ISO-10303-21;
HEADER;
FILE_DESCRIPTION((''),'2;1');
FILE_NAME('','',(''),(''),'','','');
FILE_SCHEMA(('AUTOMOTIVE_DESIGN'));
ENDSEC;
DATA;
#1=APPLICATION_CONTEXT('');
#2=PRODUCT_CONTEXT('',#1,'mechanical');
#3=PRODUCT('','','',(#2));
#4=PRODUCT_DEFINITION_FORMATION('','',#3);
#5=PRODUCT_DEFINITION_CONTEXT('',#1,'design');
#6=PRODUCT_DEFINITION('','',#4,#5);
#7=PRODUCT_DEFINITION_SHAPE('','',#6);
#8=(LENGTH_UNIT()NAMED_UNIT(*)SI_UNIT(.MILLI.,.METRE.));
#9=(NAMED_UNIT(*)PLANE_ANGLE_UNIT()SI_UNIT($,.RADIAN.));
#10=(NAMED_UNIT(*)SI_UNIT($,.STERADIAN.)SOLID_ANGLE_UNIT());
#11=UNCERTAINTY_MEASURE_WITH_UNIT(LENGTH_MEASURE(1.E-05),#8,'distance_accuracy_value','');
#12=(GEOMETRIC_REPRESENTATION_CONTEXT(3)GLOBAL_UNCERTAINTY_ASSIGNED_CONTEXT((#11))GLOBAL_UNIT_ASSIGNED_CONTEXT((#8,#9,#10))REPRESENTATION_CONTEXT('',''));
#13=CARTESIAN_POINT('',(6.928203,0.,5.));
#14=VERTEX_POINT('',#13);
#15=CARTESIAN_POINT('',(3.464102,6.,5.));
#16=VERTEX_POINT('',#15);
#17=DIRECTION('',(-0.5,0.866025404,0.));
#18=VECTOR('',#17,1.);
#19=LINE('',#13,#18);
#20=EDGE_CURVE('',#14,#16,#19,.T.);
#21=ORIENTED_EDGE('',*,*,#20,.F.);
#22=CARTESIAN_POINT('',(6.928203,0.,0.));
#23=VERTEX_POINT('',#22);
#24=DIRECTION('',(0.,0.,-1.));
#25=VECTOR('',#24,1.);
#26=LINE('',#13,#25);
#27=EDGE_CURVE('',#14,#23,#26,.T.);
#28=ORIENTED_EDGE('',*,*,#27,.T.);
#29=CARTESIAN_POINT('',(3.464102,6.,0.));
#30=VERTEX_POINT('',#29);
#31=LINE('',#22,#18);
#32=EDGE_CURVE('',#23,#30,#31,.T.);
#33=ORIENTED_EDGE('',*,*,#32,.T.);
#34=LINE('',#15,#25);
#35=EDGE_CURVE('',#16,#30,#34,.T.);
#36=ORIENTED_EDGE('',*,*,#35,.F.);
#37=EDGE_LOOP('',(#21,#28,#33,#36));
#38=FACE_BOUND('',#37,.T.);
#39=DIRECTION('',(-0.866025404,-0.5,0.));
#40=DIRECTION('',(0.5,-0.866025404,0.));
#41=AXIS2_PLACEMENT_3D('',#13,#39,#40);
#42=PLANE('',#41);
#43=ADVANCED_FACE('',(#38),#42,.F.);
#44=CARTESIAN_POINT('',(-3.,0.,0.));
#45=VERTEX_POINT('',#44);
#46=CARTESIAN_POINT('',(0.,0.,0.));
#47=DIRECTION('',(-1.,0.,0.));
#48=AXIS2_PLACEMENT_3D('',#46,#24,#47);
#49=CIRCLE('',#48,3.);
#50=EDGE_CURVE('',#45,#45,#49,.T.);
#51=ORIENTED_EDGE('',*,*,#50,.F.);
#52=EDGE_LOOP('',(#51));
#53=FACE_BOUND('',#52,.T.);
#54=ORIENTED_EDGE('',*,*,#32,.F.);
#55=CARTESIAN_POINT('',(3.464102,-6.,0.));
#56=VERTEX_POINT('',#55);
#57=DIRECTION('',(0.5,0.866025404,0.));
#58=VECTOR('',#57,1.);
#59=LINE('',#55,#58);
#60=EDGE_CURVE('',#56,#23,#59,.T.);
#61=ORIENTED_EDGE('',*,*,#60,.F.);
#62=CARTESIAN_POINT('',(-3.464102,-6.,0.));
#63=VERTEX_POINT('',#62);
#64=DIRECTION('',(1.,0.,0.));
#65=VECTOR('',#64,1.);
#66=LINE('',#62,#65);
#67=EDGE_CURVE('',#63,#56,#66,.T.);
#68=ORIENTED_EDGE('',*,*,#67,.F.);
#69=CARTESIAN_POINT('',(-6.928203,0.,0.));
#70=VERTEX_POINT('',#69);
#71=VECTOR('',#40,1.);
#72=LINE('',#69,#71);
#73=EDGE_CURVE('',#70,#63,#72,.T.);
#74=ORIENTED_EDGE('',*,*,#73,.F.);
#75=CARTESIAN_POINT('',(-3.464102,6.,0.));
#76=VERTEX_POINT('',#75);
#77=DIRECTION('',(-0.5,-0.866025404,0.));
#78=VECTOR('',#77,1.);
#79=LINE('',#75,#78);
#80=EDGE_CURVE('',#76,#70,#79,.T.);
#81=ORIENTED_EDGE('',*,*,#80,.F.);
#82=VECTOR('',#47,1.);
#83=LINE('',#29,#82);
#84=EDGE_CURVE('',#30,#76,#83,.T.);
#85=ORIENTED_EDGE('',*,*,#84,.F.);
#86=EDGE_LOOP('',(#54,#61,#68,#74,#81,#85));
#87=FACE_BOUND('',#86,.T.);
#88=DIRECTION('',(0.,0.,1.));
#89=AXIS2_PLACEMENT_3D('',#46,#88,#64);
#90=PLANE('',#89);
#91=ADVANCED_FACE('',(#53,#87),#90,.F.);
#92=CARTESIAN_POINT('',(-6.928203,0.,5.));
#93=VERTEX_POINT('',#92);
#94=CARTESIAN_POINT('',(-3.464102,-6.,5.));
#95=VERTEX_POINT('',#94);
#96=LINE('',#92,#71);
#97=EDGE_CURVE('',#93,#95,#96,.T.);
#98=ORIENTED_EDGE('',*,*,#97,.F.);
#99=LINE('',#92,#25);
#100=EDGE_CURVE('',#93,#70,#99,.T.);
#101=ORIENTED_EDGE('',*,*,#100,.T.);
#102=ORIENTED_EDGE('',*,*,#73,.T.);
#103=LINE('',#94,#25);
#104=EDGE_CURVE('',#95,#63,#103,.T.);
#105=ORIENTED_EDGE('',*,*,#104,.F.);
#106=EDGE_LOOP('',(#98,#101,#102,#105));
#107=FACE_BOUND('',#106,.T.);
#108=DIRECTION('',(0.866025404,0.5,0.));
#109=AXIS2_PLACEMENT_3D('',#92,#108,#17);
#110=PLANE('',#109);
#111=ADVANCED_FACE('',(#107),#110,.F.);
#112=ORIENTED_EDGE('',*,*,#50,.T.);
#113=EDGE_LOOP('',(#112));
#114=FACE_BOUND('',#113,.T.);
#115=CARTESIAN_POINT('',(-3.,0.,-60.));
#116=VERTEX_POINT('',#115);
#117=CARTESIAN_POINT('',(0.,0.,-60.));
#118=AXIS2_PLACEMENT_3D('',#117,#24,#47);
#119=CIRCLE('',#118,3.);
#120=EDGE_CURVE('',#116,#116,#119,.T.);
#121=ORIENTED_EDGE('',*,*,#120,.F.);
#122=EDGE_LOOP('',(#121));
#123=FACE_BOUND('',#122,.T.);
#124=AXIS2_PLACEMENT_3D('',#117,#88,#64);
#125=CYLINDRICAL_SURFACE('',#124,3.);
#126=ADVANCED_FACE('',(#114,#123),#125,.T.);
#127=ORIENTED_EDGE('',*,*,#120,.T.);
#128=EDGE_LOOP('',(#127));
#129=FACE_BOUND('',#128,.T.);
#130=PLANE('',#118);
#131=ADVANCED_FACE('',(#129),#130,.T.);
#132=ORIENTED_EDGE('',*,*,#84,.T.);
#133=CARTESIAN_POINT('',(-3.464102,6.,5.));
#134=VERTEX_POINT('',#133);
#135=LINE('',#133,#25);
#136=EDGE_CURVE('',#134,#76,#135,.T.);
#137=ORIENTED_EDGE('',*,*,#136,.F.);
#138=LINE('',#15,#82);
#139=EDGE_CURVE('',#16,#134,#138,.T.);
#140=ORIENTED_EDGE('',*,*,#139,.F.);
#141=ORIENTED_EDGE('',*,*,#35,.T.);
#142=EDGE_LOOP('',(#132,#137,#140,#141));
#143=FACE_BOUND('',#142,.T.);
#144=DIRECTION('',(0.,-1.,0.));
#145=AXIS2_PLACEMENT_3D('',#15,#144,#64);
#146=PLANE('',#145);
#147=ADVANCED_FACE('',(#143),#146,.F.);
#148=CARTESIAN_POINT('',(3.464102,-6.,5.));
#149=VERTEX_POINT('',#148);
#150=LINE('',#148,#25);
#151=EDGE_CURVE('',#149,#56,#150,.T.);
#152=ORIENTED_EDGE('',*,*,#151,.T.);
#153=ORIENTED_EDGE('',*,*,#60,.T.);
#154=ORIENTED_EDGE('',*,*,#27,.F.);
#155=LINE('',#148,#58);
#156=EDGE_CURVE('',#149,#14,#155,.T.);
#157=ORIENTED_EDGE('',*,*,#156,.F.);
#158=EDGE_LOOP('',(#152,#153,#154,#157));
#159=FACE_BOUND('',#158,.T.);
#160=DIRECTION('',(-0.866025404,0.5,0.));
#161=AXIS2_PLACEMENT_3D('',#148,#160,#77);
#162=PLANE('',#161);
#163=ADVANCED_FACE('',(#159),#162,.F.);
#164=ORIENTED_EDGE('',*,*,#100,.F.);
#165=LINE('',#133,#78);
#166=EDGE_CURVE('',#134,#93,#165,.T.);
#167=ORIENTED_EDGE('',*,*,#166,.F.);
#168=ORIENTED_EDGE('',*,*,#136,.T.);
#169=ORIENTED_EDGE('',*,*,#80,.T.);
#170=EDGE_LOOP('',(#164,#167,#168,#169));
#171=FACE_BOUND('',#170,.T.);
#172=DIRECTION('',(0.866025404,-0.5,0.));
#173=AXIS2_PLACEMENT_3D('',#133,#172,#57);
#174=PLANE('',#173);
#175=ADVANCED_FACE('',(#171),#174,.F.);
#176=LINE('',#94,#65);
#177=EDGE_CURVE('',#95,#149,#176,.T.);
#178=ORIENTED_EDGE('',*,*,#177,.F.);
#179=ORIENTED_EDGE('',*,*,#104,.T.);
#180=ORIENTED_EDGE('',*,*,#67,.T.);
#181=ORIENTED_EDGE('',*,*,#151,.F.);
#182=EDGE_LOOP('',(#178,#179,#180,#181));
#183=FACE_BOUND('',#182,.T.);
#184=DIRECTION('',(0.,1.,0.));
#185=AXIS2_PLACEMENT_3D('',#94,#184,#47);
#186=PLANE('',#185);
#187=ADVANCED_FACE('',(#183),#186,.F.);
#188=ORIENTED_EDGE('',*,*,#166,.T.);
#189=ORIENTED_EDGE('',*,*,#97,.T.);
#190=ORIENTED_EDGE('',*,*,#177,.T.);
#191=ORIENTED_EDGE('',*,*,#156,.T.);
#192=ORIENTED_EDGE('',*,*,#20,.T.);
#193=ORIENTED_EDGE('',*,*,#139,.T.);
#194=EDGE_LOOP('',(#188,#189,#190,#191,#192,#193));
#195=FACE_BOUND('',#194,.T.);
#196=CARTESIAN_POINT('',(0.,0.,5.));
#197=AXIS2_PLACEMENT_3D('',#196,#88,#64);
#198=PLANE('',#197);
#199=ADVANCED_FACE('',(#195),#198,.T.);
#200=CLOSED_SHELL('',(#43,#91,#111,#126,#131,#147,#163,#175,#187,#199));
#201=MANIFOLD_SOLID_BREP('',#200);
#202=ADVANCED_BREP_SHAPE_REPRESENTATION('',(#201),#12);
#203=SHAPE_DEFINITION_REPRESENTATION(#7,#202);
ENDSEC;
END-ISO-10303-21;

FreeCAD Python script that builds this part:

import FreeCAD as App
import Part
import Sketcher
Q = App.Units.Quantity

doc = App.newDocument("Part")
body = doc.addObject("PartDesign::Body", "Body")

sketch1 = doc.addObject("Sketcher::SketchObject", "Sketch")
body.addObject(sketch1)
sketch1.AttachmentSupport = (doc.XY_Plane, [""])
sketch1.MapMode = "FlatFace"
sketch1.addGeometry(Part.LineSegment(App.Vector(3, 6, 0), App.Vector(-3, 6, 0)), False)
sketch1.addGeometry(Part.LineSegment(App.Vector(-3, 6, 0), App.Vector(-7, 0, 0)), False)
sketch1.addGeometry(Part.LineSegment(App.Vector(-7, 0, 0), App.Vector(-3, -6, 0)), False)
sketch1.addGeometry(Part.LineSegment(App.Vector(-3, -6, 0), App.Vector(3, -6, 0)), False)
sketch1.addGeometry(Part.LineSegment(App.Vector(3, -6, 0), App.Vector(7, 0, 0)), False)
sketch1.addGeometry(Part.LineSegment(App.Vector(7, 0, 0), App.Vector(3, 6, 0)), False)
sketch1.addConstraint(Sketcher.Constraint("Coincident", 0, 2, 1, 1))
sketch1.addConstraint(Sketcher.Constraint("Coincident", 1, 2, 2, 1))
sketch1.addConstraint(Sketcher.Constraint("Coincident", 2, 2, 3, 1))
sketch1.addConstraint(Sketcher.Constraint("Coincident", 3, 2, 4, 1))
sketch1.addConstraint(Sketcher.Constraint("Coincident", 4, 2, 5, 1))
sketch1.addConstraint(Sketcher.Constraint("Coincident", 5, 2, 0, 1))
sketch1.addConstraint(Sketcher.Constraint("Horizontal", 0))
sketch1.addConstraint(Sketcher.Constraint("Horizontal", 3))
sketch1.addConstraint(Sketcher.Constraint("Symmetric", 0, 2, 3, 2, -1, 1))
sketch1.addConstraint(Sketcher.Constraint("Symmetric", 1, 2, 4, 2, -1, 1))
sketch1.addConstraint(Sketcher.Constraint("PointOnObject", 1, 2, -1))
sketch1.addConstraint(Sketcher.Constraint("Parallel", 2, 5))
sketch1.addConstraint(Sketcher.Constraint("Vertical", 0, 2, 2, 2))
sketch1.addConstraint(Sketcher.Constraint("Angle", 1, Q("-120 deg")))
sketch1.addConstraint(Sketcher.Constraint("DistanceY", -1, 1, 0, 2, 6.0))
sketch1.addConstraint(Sketcher.Constraint("DistanceX", 0, 2, -1, 1, 3.464102))
pad1 = doc.addObject("PartDesign::Pad", "Pad")
body.addObject(pad1)
pad1.Profile = sketch1
pad1.Length = 5

sketch2 = doc.addObject("Sketcher::SketchObject", "Sketch001")
body.addObject(sketch2)
sketch2.AttachmentSupport = (doc.XY_Plane, [""])
sketch2.MapMode = "FlatFace"
sketch2.addGeometry(Part.Circle(App.Vector(0, 0, 0), App.Vector(0, 0, 1), 3), False)
sketch2.addConstraint(Sketcher.Constraint("Coincident", 0, 3, -1, 1))
sketch2.addConstraint(Sketcher.Constraint("Diameter", 0, 6.0))
pad2 = doc.addObject("PartDesign::Pad", "Pad001")
body.addObject(pad2)
pad2.Profile = sketch2
pad2.Length = 60
pad2.Reversed = True

doc.recompute()
